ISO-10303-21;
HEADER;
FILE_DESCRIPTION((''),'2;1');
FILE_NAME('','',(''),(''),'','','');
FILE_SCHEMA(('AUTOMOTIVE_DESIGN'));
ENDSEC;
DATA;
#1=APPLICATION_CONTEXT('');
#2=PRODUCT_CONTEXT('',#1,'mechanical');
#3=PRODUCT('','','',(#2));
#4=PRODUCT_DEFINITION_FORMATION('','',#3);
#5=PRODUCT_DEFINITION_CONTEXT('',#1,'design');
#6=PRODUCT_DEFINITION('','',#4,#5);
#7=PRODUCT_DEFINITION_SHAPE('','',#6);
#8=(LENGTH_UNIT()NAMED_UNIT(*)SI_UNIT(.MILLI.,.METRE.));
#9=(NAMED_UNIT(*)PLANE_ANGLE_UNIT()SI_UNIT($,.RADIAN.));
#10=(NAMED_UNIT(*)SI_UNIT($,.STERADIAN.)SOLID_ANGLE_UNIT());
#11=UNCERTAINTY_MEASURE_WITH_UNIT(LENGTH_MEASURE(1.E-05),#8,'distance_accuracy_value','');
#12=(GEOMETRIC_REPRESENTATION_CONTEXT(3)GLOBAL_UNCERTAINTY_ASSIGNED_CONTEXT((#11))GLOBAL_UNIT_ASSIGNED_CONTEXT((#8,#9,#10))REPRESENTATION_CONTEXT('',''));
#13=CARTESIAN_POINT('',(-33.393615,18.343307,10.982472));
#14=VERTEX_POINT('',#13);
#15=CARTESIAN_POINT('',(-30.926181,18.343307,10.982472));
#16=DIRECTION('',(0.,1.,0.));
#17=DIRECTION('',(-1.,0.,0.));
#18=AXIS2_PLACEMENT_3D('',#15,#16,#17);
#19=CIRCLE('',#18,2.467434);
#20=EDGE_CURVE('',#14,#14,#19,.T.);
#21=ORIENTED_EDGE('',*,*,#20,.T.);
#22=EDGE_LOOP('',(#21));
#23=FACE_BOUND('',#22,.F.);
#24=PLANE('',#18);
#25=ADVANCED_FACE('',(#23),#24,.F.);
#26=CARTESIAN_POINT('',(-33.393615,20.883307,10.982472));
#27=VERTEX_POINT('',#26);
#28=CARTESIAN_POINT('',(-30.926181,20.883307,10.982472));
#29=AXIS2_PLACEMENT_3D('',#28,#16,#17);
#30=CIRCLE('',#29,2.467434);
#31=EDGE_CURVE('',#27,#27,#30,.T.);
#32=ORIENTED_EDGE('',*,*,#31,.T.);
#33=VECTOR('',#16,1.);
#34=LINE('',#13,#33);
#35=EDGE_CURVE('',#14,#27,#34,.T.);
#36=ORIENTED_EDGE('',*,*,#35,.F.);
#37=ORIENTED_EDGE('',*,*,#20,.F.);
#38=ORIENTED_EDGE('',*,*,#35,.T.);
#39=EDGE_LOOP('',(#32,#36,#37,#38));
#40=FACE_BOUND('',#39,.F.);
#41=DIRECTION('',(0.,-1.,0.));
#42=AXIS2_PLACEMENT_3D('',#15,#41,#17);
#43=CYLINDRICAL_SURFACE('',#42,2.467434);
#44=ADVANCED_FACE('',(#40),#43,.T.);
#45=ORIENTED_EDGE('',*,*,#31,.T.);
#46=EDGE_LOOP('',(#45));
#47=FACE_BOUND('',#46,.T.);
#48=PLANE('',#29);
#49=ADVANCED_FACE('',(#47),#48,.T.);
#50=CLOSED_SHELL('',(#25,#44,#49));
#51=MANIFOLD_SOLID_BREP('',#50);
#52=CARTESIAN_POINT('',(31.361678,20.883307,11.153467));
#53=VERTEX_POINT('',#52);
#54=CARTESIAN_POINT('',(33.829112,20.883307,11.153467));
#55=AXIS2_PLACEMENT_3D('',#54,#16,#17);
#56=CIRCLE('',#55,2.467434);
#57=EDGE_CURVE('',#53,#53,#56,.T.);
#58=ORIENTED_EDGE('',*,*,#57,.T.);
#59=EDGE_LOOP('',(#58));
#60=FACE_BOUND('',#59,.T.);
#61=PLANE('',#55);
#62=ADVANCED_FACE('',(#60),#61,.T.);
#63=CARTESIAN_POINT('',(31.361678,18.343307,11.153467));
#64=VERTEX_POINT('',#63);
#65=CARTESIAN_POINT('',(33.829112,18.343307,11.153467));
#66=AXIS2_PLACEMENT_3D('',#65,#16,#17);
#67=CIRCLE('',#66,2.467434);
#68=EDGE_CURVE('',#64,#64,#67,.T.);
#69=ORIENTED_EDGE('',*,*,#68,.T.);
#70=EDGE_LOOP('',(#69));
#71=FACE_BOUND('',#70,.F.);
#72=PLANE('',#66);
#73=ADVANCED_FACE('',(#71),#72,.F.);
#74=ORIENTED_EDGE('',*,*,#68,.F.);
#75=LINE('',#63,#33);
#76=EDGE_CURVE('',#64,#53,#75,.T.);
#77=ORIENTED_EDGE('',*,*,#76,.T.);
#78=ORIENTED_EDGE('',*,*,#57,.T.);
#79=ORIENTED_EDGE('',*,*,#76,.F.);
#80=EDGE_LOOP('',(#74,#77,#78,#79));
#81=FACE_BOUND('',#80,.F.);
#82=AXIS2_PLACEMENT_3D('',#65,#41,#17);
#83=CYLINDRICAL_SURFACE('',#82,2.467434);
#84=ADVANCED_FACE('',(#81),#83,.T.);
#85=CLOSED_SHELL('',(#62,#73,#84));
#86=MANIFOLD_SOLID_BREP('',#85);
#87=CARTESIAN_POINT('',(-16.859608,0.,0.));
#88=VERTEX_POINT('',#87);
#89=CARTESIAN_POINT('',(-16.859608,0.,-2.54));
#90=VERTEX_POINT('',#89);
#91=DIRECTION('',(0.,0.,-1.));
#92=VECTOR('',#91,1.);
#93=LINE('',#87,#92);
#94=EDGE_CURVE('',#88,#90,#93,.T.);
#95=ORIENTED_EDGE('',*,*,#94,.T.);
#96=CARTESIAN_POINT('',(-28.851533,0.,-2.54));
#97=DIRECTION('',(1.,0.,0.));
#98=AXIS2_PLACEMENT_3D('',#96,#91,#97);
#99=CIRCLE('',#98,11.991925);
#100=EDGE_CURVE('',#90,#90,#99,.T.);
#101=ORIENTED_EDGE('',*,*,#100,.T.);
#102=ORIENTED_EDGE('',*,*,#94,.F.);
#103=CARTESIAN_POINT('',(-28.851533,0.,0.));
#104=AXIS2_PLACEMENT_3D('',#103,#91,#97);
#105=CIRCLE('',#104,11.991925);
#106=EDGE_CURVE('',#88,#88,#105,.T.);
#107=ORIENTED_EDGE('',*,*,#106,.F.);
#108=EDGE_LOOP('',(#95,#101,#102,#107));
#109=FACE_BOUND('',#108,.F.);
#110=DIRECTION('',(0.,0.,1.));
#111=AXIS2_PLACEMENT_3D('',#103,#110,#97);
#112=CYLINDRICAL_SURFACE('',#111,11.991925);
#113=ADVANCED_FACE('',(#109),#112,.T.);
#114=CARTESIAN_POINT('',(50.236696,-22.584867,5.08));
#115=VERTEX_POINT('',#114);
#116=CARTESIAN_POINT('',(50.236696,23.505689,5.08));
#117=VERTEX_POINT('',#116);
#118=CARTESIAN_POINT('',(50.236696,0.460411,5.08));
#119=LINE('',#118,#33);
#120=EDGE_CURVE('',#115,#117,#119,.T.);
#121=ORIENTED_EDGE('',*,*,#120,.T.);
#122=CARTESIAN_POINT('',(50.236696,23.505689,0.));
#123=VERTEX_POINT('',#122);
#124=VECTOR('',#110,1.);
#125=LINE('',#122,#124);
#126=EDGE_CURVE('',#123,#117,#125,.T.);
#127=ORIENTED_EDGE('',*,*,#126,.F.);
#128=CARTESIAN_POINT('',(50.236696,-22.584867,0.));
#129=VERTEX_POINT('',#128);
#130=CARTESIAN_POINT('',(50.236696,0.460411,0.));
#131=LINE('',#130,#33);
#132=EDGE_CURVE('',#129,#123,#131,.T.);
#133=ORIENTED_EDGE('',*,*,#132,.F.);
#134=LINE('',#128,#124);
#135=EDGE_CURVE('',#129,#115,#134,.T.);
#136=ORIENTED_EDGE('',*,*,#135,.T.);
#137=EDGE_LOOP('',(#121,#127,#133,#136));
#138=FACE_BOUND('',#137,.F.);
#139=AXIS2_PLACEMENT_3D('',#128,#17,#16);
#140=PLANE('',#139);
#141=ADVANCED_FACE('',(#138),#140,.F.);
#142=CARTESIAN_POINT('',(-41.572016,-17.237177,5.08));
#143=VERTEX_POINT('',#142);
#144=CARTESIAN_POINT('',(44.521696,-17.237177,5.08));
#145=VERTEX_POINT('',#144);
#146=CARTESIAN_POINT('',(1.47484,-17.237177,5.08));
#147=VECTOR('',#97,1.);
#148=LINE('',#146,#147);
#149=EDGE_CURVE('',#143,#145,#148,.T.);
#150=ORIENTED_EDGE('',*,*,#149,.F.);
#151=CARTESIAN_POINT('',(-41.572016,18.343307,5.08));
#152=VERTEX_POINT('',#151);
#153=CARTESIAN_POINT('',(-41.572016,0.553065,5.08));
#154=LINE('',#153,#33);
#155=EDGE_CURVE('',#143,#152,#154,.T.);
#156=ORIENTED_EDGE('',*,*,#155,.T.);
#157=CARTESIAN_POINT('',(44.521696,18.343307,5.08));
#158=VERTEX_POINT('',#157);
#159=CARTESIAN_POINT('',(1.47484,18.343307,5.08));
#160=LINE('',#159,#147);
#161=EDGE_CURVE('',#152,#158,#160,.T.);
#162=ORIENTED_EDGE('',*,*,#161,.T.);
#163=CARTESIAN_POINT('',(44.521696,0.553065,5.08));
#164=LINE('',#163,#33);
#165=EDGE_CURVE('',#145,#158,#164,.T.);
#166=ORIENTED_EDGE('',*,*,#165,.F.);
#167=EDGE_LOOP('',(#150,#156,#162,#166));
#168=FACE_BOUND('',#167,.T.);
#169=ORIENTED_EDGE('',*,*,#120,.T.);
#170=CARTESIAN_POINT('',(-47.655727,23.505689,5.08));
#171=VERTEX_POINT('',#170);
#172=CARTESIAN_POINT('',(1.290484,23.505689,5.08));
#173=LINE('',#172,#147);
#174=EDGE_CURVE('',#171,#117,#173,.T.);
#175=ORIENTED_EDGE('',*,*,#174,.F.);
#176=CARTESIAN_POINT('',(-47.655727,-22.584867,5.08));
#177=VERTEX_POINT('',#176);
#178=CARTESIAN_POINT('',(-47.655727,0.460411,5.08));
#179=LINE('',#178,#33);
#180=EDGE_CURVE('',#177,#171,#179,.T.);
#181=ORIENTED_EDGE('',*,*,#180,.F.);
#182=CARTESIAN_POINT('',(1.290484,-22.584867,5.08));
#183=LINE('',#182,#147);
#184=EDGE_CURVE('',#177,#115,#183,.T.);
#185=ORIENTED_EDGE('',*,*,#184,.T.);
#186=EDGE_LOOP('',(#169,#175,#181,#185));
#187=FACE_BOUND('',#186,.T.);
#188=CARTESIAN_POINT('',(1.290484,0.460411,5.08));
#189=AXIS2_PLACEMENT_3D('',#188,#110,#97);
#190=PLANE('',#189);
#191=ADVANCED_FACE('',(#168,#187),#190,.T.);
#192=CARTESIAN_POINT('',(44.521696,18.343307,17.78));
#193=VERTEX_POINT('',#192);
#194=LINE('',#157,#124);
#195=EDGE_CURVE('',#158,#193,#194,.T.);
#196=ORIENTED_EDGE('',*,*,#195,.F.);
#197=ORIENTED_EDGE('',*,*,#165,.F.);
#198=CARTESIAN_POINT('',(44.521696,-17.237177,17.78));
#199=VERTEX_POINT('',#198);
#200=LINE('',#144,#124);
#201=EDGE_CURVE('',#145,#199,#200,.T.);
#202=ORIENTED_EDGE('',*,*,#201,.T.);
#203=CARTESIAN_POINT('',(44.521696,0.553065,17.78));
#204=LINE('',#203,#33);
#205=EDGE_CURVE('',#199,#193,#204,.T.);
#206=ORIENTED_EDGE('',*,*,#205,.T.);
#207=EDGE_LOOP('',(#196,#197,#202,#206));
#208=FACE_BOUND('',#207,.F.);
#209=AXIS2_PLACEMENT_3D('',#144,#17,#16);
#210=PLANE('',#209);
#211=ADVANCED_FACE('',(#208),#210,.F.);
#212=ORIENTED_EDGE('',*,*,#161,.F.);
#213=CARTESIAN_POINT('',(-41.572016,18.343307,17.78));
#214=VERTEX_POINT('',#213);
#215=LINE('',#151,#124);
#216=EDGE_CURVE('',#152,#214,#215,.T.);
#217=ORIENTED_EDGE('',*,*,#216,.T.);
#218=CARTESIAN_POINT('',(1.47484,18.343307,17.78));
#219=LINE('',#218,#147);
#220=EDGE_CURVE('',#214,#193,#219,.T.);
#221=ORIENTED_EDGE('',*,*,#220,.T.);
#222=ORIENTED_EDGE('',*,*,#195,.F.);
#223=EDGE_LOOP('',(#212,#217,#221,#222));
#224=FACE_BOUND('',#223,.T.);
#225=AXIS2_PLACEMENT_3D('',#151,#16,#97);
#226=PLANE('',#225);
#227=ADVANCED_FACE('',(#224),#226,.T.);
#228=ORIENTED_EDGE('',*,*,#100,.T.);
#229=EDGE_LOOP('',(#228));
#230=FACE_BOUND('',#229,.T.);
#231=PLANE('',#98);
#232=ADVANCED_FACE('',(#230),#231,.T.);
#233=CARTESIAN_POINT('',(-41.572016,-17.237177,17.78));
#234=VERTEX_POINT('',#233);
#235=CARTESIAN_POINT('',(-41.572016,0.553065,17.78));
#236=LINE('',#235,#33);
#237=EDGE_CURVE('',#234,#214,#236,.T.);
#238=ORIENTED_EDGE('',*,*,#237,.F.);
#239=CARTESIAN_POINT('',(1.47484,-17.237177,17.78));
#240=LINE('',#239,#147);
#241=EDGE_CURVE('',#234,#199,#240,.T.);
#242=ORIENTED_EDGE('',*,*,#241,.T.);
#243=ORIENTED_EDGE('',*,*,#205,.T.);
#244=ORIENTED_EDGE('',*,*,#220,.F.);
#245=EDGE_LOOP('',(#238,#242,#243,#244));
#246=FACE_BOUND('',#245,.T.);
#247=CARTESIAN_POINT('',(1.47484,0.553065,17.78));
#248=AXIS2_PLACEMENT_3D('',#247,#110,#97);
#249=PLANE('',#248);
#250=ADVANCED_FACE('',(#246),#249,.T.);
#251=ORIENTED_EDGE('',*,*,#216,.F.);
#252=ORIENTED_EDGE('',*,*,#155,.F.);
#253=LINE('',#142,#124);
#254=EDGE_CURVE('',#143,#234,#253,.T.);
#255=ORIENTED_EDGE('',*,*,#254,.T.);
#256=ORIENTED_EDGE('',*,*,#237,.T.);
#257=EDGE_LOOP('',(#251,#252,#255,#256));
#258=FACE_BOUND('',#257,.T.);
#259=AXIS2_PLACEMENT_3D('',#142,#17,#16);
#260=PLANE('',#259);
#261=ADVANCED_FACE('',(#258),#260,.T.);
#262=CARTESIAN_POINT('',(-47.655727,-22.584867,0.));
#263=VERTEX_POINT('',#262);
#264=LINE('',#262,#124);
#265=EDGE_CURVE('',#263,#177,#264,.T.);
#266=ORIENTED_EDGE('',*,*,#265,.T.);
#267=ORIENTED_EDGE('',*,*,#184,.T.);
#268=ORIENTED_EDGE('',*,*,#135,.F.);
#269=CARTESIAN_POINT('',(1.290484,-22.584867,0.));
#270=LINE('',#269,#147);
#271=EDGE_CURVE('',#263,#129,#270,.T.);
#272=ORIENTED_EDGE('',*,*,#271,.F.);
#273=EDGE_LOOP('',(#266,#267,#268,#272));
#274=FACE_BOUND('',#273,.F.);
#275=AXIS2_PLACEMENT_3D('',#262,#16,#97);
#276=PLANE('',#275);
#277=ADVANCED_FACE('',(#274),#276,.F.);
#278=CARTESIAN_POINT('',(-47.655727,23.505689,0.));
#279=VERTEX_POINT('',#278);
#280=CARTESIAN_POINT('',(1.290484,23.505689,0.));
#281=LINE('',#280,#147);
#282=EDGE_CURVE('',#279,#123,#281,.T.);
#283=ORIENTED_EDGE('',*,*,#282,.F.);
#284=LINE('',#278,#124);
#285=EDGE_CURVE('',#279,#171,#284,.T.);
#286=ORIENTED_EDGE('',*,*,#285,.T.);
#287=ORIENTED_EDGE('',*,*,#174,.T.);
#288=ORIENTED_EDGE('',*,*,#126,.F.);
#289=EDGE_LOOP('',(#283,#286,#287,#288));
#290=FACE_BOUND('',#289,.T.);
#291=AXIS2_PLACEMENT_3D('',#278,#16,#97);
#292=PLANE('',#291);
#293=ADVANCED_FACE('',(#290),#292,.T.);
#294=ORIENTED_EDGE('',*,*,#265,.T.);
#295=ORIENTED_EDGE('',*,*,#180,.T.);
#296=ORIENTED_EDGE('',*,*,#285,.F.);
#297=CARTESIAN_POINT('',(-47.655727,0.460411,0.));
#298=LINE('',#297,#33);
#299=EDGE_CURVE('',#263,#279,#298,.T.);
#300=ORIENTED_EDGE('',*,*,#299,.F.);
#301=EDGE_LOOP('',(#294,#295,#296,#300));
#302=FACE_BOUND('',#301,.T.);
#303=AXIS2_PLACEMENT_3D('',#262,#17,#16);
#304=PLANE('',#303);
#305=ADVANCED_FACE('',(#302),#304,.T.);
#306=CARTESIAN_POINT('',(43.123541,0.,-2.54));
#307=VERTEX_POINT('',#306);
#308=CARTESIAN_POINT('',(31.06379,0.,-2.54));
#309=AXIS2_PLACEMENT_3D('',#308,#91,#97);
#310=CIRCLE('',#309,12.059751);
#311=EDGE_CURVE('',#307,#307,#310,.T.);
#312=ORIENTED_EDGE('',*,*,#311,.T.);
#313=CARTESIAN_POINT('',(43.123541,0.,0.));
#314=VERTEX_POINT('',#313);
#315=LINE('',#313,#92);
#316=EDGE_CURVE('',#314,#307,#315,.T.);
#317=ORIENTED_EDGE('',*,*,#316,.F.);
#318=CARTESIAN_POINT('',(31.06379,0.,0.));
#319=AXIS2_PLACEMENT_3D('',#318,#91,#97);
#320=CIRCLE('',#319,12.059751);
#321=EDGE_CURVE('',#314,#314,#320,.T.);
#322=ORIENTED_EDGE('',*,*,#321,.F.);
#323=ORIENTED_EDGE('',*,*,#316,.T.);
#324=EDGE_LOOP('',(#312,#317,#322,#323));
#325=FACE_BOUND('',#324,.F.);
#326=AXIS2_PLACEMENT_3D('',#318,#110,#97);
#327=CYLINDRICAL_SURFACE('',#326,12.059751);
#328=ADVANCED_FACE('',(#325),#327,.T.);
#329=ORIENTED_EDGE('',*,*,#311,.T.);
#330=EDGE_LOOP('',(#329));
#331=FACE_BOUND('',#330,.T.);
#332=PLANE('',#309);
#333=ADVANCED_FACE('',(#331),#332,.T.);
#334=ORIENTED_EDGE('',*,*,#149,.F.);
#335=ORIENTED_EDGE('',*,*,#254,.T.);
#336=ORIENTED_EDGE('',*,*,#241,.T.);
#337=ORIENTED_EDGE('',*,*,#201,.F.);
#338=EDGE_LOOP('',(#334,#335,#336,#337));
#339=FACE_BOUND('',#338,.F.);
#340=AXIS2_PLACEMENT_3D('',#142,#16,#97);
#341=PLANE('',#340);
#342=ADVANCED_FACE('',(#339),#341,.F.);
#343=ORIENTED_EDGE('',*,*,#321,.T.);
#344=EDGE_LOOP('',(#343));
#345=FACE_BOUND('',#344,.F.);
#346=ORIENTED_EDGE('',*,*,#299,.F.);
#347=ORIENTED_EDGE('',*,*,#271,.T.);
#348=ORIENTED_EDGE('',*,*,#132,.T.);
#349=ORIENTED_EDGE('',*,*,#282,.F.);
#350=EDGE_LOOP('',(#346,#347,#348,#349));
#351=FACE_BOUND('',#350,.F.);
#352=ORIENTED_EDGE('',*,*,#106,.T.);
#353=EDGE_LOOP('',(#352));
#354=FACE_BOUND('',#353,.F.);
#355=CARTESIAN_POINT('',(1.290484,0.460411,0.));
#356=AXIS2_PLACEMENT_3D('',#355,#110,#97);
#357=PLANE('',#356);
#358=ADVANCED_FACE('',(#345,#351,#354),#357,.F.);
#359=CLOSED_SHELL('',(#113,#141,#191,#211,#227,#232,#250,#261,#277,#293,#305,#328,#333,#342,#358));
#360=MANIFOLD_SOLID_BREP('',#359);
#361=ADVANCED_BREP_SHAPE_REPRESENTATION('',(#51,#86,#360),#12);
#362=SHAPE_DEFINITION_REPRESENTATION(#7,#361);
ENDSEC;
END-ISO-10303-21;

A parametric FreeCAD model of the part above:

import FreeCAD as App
import Part
import Sketcher
from FreeCAD import Vector
Q = App.Units.Quantity

doc = App.newDocument("Part")
body = doc.addObject("PartDesign::Body", "Body")

# Sketch on XY plane
sketch1 = body.newObject("Sketcher::SketchObject", "Sketch")
sketch1.AttachmentSupport = (doc.getObject("XY_Plane"), [""])
sketch1.MapMode = "FlatFace"
sketch1.addGeometry(Part.LineSegment(Vector(-48, 24, 0), Vector(-48, -23, 0)), False)
sketch1.addGeometry(Part.LineSegment(Vector(-48, -23, 0), Vector(50, -23, 0)), False)
sketch1.addGeometry(Part.LineSegment(Vector(50, -23, 0), Vector(50, 24, 0)), False)
sketch1.addGeometry(Part.LineSegment(Vector(50, 24, 0), Vector(-48, 24, 0)), False)
sketch1.addConstraint(Sketcher.Constraint("Coincident", 0, 2, 1, 1))
sketch1.addConstraint(Sketcher.Constraint("Coincident", 1, 2, 2, 1))
sketch1.addConstraint(Sketcher.Constraint("Coincident", 2, 2, 3, 1))
sketch1.addConstraint(Sketcher.Constraint("Coincident", 3, 2, 0, 1))
sketch1.addConstraint(Sketcher.Constraint("Vertical", 0))
sketch1.addConstraint(Sketcher.Constraint("Horizontal", 1))
sketch1.addConstraint(Sketcher.Constraint("Vertical", 2))
sketch1.addConstraint(Sketcher.Constraint("Horizontal", 3))
sketch1.addConstraint(Sketcher.Constraint("DistanceX", 1, 1, 1, 2, 97.892423))
sketch1.addConstraint(Sketcher.Constraint("DistanceY", 0, 2, 0, 1, 46.090555))
sketch1.addConstraint(Sketcher.Constraint("DistanceY", -1, 1, 2, 2, 23.505689))
sketch1.addConstraint(Sketcher.Constraint("DistanceX", 0, 2, -1, 1, 47.655727))
pad1 = body.newObject("PartDesign::Pad", "Pad")
pad1.Profile = sketch1
pad1.Length = Q("0.2 in")

# Sketch on XY plane
sketch2 = body.newObject("Sketcher::SketchObject", "Sketch001")
sketch2.AttachmentSupport = (doc.getObject("XY_Plane"), [""])
sketch2.MapMode = "FlatFace"
sketch2.AttachmentOffset = App.Placement(Vector(0, 0, 0.2 * 25.4), App.Rotation())
sketch2.addGeometry(Part.LineSegment(Vector(-42, 18, 0), Vector(-42, -17, 0)), False)
sketch2.addGeometry(Part.LineSegment(Vector(-42, -17, 0), Vector(45, -17, 0)), False)
sketch2.addGeometry(Part.LineSegment(Vector(45, -17, 0), Vector(45, 18, 0)), False)
sketch2.addGeometry(Part.LineSegment(Vector(45, 18, 0), Vector(-42, 18, 0)), False)
sketch2.addConstraint(Sketcher.Constraint("Coincident", 0, 2, 1, 1))
sketch2.addConstraint(Sketcher.Constraint("Coincident", 1, 2, 2, 1))
sketch2.addConstraint(Sketcher.Constraint("Coincident", 2, 2, 3, 1))
sketch2.addConstraint(Sketcher.Constraint("Coincident", 3, 2, 0, 1))
sketch2.addConstraint(Sketcher.Constraint("Vertical", 0))
sketch2.addConstraint(Sketcher.Constraint("Horizontal", 1))
sketch2.addConstraint(Sketcher.Constraint("Vertical", 2))
sketch2.addConstraint(Sketcher.Constraint("Horizontal", 3))
sketch2.addConstraint(Sketcher.Constraint("DistanceX", 1, 1, 1, 2, 86.093713))
sketch2.addConstraint(Sketcher.Constraint("DistanceY", 0, 2, 0, 1, 35.580484))
sketch2.addConstraint(Sketcher.Constraint("DistanceX", 0, 2, -1, 1, 41.572016))
sketch2.addConstraint(Sketcher.Constraint("DistanceY", 0, 2, -1, 1, 17.237177))
pad2 = body.newObject("PartDesign::Pad", "Pad001")
pad2.Profile = sketch2
pad2.Length = Q("0.5 in")

# Sketch on XY plane
sketch3 = body.newObject("Sketcher::SketchObject", "Sketch002")
sketch3.AttachmentSupport = (doc.getObject("XY_Plane"), [""])
sketch3.MapMode = "FlatFace"
sketch3.addGeometry(Part.Circle(Vector(-29, 0, 0), Vector(0, 0, 1), 12), False)
sketch3.addGeometry(Part.Circle(Vector(31, 0, 0), Vector(0, 0, 1), 12), False)
sketch3.addConstraint(Sketcher.Constraint("PointOnObject", 0, 3, -1))
sketch3.addConstraint(Sketcher.Constraint("PointOnObject", 1, 3, -1))
sketch3.addConstraint(Sketcher.Constraint("Diameter", 0, 23.98385))
sketch3.addConstraint(Sketcher.Constraint("Diameter", 1, 24.119502))
sketch3.addConstraint(Sketcher.Constraint("DistanceX", -1, 1, 1, 3, 31.06379))
sketch3.addConstraint(Sketcher.Constraint("DistanceX", 0, 3, -1, 1, 28.851533))
pad3 = body.newObject("PartDesign::Pad", "Pad002")
pad3.Profile = sketch3
pad3.Length = Q("0.1 in")
pad3.Reversed = True
body2 = doc.addObject("PartDesign::Body", "Body001")
body2.AllowCompound = True

# Sketch on XZ plane
sketch4 = body2.newObject("Sketcher::SketchObject", "Sketch003")
sketch4.AttachmentSupport = (doc.getObject("XZ_Plane001"), [""])
sketch4.MapMode = "FlatFace"
sketch4.AttachmentOffset = App.Placement(Vector(0, 0, -18.343307), App.Rotation())
sketch4.addGeometry(Part.Circle(Vector(-30.9, 11, 0), Vector(0, 0, 1), 2.5), False)
sketch4.addGeometry(Part.Circle(Vector(33.8, 11.2, 0), Vector(0, 0, 1), 2.5), False)
sketch4.addConstraint(Sketcher.Constraint("Equal", 0, 1))
sketch4.addConstraint(Sketcher.Constraint("Diameter", 0, 4.934868))
sketch4.addConstraint(Sketcher.Constraint("DistanceX", 0, 3, -1, 1, 30.926181))
sketch4.addConstraint(Sketcher.Constraint("DistanceY", -1, 1, 0, 3, 10.982472))
sketch4.addConstraint(Sketcher.Constraint("DistanceX", -1, 1, 1, 3, 33.829112))
sketch4.addConstraint(Sketcher.Constraint("DistanceY", -1, 1, 1, 3, 11.153467))
pad4 = body2.newObject("PartDesign::Pad", "Pad003")
pad4.Profile = sketch4
pad4.Length = Q("0.1 in")
pad4.Reversed = True

doc.recompute()
